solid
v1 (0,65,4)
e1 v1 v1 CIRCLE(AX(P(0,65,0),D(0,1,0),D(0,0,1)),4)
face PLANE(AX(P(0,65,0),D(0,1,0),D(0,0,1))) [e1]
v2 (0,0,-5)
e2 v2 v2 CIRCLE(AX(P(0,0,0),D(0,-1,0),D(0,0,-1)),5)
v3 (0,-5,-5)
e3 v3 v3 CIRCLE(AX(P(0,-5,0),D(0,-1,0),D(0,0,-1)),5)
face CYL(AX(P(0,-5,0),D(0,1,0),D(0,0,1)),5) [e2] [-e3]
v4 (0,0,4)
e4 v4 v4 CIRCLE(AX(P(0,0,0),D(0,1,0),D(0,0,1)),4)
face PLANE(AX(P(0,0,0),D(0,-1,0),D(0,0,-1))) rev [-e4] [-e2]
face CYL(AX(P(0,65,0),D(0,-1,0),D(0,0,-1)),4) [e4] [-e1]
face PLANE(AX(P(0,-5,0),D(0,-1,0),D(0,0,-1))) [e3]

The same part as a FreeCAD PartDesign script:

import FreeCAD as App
import Part
import Sketcher

V = App.Vector

doc = App.newDocument("Part")
body = doc.addObject("PartDesign::Body", "Body")

# Sketch on XZ plane
sketch1 = body.newObject("Sketcher::SketchObject", "Sketch")
sketch1.AttachmentSupport = (doc.getObject("XZ_Plane"), [""])
sketch1.MapMode = "FlatFace"
sketch1.addGeometry(Part.Circle(V(0, 0, 0), V(0, 0, 1), 4), False)
sketch1.addConstraint([
    Sketcher.Constraint("Coincident", 0, 3, -1, 1),
    Sketcher.Constraint("Diameter", 0, 8.0),
])
pad1 = body.newObject("PartDesign::Pad", "Pad")
pad1.Profile = sketch1
pad1.Length = 65
pad1.Reversed = True

# Sketch on XZ plane
sketch2 = body.newObject("Sketcher::SketchObject", "Sketch001")
sketch2.AttachmentSupport = (doc.getObject("XZ_Plane"), [""])
sketch2.MapMode = "FlatFace"
sketch2.addGeometry(Part.Circle(V(0, 0, 0), V(0, 0, 1), 5), False)
sketch2.addConstraint([
    Sketcher.Constraint("Coincident", 0, 3, -1, 1),
    Sketcher.Constraint("Diameter", 0, 10.0),
])
pad2 = body.newObject("PartDesign::Pad", "Pad001")
pad2.Profile = sketch2
pad2.Length = 5

doc.recompute()
